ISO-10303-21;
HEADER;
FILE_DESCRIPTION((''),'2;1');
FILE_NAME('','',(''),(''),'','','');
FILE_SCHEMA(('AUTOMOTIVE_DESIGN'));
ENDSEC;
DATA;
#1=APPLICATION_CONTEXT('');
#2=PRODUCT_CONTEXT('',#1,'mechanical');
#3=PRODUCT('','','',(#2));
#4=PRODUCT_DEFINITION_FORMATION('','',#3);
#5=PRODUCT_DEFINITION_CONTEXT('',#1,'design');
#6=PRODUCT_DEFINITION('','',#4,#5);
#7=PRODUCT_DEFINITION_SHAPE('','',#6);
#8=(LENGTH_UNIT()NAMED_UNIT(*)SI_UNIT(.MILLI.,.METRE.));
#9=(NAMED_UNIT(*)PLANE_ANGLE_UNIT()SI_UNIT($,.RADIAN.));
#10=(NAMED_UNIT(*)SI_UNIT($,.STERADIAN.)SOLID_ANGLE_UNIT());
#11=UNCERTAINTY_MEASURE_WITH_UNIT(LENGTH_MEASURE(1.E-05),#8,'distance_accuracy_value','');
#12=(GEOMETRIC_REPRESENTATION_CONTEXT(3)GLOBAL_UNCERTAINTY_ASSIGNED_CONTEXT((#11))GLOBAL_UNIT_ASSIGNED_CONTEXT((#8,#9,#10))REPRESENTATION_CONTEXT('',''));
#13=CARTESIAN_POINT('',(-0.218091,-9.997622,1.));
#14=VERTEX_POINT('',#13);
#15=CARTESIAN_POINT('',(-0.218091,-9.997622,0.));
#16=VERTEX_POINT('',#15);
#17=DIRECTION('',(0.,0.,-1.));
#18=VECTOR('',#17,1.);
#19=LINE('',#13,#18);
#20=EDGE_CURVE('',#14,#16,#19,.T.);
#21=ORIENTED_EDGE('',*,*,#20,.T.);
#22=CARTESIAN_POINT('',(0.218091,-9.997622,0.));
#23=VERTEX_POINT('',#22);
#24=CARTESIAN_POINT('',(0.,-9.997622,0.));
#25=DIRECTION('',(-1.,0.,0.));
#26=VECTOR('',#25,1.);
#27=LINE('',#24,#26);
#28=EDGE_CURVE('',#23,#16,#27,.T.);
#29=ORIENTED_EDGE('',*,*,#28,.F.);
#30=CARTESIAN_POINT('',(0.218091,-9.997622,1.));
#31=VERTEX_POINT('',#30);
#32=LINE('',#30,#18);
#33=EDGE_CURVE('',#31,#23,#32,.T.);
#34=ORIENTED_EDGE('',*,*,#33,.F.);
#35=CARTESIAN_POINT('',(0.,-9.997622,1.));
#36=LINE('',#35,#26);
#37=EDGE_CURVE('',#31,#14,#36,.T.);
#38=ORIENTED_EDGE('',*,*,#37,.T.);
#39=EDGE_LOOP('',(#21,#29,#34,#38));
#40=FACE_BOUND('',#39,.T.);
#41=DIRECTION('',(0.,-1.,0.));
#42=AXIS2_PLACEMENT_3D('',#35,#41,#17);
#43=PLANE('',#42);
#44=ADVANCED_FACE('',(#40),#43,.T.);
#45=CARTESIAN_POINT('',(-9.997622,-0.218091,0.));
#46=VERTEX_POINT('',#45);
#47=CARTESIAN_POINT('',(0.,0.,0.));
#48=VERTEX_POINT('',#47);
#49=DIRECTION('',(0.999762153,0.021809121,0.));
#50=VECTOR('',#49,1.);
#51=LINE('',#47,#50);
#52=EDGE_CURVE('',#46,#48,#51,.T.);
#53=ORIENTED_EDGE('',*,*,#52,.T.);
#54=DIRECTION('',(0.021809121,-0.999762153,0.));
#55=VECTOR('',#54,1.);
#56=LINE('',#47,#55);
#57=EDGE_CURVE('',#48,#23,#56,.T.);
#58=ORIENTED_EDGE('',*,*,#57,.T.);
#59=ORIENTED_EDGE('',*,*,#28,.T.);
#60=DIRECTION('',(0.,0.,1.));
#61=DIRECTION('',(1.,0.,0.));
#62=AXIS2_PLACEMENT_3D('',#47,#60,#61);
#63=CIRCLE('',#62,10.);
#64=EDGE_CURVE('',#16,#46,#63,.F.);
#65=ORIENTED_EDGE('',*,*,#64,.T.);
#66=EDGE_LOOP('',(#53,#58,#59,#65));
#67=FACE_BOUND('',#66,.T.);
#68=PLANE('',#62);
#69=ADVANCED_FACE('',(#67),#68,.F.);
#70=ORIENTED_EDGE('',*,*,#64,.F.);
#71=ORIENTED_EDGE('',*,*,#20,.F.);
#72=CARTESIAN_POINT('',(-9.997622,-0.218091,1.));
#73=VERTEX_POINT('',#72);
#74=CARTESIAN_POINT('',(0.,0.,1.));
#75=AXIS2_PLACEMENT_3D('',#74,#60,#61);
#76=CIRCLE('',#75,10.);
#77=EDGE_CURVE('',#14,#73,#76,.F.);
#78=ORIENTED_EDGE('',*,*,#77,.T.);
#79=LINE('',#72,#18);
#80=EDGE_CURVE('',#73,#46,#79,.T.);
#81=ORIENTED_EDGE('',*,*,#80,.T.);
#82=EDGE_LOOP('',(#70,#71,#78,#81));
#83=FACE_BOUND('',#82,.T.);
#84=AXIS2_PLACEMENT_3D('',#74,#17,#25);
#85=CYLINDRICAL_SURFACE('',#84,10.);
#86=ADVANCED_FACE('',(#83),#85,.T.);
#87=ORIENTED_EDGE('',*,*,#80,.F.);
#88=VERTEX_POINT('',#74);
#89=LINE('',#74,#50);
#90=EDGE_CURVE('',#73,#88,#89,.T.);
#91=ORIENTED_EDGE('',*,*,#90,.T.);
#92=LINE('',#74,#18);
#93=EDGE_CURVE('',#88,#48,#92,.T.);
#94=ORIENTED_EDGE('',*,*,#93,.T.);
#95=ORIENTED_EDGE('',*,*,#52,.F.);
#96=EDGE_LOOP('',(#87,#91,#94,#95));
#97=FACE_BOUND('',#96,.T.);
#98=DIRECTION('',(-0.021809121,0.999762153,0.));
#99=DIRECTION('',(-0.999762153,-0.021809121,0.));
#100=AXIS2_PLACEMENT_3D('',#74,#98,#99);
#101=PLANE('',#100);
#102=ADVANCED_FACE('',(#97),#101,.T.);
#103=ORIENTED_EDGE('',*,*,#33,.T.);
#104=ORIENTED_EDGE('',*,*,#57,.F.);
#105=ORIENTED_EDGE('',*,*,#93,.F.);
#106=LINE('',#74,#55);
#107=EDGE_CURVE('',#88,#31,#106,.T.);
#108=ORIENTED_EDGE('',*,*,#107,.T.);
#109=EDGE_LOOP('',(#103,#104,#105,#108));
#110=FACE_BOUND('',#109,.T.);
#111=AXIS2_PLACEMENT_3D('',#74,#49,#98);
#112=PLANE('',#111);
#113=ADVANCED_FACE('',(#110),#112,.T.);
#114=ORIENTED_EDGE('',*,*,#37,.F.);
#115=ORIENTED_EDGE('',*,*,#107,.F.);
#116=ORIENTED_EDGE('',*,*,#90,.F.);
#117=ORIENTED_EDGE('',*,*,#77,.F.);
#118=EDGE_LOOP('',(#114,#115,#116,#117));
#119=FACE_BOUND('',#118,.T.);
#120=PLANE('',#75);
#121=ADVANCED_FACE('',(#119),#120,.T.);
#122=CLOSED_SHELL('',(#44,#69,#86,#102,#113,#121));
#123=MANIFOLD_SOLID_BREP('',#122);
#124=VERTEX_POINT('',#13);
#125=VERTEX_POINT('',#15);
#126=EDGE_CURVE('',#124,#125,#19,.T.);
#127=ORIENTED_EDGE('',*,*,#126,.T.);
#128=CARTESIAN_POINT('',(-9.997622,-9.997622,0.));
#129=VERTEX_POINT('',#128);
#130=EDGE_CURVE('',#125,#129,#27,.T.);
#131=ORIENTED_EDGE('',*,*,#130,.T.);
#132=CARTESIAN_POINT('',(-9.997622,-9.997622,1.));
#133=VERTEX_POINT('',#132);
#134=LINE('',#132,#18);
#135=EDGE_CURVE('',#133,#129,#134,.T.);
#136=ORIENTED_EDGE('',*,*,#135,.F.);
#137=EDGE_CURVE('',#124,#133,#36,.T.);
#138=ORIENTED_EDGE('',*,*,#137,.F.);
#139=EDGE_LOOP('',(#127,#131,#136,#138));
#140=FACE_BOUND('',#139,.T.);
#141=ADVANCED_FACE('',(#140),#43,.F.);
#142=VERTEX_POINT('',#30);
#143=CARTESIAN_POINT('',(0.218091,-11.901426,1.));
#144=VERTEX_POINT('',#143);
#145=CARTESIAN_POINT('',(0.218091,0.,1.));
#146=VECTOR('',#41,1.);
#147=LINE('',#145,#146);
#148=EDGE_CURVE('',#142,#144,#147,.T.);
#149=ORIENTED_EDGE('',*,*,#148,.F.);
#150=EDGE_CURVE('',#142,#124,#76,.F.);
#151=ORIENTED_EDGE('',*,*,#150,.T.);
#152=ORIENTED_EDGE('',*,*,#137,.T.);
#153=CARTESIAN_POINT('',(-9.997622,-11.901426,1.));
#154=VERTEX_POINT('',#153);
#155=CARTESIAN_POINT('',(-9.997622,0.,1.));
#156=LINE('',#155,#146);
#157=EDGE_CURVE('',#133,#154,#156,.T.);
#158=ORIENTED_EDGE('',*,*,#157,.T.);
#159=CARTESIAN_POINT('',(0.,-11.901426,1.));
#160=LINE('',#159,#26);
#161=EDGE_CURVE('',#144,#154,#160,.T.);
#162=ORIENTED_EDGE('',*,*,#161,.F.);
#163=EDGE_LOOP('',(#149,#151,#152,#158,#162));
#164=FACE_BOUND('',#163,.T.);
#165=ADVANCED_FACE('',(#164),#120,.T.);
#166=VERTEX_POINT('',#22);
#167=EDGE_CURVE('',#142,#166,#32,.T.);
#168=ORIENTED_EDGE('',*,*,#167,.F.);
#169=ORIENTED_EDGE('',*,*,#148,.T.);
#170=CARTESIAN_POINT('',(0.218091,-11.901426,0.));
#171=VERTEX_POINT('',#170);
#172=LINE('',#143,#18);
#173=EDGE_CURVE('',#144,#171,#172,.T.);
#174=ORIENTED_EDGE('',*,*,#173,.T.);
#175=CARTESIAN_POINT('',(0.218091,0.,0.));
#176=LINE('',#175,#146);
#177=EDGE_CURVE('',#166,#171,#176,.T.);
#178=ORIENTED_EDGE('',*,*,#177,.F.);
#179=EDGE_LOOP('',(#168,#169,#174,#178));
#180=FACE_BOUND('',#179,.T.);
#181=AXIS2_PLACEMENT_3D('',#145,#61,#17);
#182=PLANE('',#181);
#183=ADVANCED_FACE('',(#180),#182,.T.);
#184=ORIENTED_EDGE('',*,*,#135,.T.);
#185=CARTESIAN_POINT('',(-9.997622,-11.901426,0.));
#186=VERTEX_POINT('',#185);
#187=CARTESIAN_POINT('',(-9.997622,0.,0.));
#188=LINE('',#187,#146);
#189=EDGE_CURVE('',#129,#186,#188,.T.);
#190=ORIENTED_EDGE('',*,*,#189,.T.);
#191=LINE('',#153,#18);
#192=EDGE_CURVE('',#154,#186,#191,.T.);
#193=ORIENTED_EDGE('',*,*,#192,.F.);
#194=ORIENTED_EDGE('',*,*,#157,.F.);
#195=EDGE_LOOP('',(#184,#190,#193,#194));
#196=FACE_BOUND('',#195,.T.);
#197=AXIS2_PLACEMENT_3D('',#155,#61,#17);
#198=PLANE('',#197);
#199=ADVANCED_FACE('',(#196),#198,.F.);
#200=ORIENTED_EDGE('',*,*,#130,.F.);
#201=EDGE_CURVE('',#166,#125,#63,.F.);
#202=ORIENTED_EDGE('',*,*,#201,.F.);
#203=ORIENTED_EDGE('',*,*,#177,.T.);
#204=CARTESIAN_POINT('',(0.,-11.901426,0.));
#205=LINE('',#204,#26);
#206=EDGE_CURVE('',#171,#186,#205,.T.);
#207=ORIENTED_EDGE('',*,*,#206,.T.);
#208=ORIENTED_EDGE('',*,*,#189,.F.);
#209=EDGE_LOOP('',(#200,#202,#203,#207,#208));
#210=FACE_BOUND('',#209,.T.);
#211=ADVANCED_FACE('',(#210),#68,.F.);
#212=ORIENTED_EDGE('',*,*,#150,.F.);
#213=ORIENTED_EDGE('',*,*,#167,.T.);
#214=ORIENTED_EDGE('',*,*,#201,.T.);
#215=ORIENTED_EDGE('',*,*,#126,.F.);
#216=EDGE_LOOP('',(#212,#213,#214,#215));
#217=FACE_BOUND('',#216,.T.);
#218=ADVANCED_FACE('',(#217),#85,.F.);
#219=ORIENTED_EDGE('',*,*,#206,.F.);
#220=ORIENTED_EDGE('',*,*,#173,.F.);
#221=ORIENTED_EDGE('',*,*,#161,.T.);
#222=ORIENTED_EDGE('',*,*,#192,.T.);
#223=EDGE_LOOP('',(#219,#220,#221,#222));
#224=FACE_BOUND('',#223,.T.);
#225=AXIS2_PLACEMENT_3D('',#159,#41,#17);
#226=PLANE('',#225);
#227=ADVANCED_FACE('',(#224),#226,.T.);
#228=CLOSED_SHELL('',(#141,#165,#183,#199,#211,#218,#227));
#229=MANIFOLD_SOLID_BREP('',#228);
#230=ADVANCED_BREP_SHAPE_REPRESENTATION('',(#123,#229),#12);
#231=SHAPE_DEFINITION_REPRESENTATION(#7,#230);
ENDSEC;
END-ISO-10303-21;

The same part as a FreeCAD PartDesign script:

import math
import FreeCAD as App
import Part
import Sketcher

doc = App.newDocument("Part")
body = doc.addObject("PartDesign::Body", "Body")

sketch1 = doc.addObject("Sketcher::SketchObject", "Sketch")
body.addObject(sketch1)
sketch1.AttachmentSupport = (doc.XY_Plane, [""])
sketch1.MapMode = "FlatFace"
sketch1.addGeometry([
    Part.LineSegment(App.Vector(0, 0, 0), App.Vector(-9.997622, -0.218091, 0)),
    Part.ArcOfCircle(Part.Circle(App.Vector(0, 0, 0), App.Vector(0, 0, 1), 10), math.radians(-178.75033), math.radians(-91.24967)),
    Part.LineSegment(App.Vector(-0.218091, -9.997622, 0), App.Vector(0.218091, -9.997622, 0)),
    Part.LineSegment(App.Vector(0.218091, -9.997622, 0), App.Vector(0, 0, 0)),
], False)
sketch1.addConstraint([
    Sketcher.Constraint("Coincident", 0, 2, 1, 1),
    Sketcher.Constraint("Coincident", 1, 2, 2, 1),
    Sketcher.Constraint("Coincident", 2, 2, 3, 1),
    Sketcher.Constraint("Coincident", 3, 2, 0, 1),
    Sketcher.Constraint("Horizontal", 2),
    Sketcher.Constraint("Coincident", 1, 3, -1, 1),
    Sketcher.Constraint("Coincident", 3, 2, -1, 1),
    Sketcher.Constraint("Perpendicular", 0, 3),
    Sketcher.Constraint("Equal", 0, 3),
    Sketcher.Constraint("Radius", 1, 10.0),
    Sketcher.Constraint("DistanceX", 2, 1, 2, 2, 0.436182),
])
pad1 = doc.addObject("PartDesign::Pad", "Pad")
body.addObject(pad1)
pad1.Profile = sketch1
pad1.Length = 1
body2 = doc.addObject("PartDesign::Body", "Body001")

sketch2 = doc.addObject("Sketcher::SketchObject", "Sketch001")
body2.addObject(sketch2)
sketch2.AttachmentSupport = (doc.getObject("XY_Plane001"), [""])
sketch2.MapMode = "FlatFace"
sketch2.addGeometry([
    Part.ArcOfCircle(Part.Circle(App.Vector(0, -0.000002, 0), App.Vector(0, 0, 1), 9.999998), math.radians(-91.24967), math.radians(-88.75033)),
    Part.LineSegment(App.Vector(-0.218091, -9.997622, 0), App.Vector(-9.997622, -9.997622, 0)),
    Part.LineSegment(App.Vector(-9.997622, -9.997622, 0), App.Vector(-9.997622, -11.901426, 0)),
    Part.LineSegment(App.Vector(-9.997622, -11.901426, 0), App.Vector(0.218091, -11.901426, 0)),
    Part.LineSegment(App.Vector(0.218091, -11.901426, 0), App.Vector(0.218091, -9.997622, 0)),
], False)
sketch2.addConstraint([
    Sketcher.Constraint("Coincident", 0, 1, 1, 1),
    Sketcher.Constraint("Coincident", 1, 2, 2, 1),
    Sketcher.Constraint("Coincident", 2, 2, 3, 1),
    Sketcher.Constraint("Coincident", 3, 2, 4, 1),
    Sketcher.Constraint("Coincident", 4, 2, 0, 2),
    Sketcher.Constraint("Horizontal", 1),
    Sketcher.Constraint("Vertical", 2),
    Sketcher.Constraint("Horizontal", 3),
    Sketcher.Constraint("Vertical", 4),
    Sketcher.Constraint("Coincident", 0, 3, -1, 1),
    Sketcher.Constraint("Horizontal", 1, 2, 4, 2),
    Sketcher.Constraint("Radius", 0, 9.999998),
    Sketcher.Constraint("DistanceX", 1, 2, 1, 1, 9.77953),
    Sketcher.Constraint("DistanceX", 3, 1, 3, 2, 10.215713),
    Sketcher.Constraint("DistanceY", 2, 2, 2, 1, 1.903804),
])
pad2 = doc.addObject("PartDesign::Pad", "Pad001")
body2.addObject(pad2)
pad2.Profile = sketch2
pad2.Length = 1

doc.recompute()
